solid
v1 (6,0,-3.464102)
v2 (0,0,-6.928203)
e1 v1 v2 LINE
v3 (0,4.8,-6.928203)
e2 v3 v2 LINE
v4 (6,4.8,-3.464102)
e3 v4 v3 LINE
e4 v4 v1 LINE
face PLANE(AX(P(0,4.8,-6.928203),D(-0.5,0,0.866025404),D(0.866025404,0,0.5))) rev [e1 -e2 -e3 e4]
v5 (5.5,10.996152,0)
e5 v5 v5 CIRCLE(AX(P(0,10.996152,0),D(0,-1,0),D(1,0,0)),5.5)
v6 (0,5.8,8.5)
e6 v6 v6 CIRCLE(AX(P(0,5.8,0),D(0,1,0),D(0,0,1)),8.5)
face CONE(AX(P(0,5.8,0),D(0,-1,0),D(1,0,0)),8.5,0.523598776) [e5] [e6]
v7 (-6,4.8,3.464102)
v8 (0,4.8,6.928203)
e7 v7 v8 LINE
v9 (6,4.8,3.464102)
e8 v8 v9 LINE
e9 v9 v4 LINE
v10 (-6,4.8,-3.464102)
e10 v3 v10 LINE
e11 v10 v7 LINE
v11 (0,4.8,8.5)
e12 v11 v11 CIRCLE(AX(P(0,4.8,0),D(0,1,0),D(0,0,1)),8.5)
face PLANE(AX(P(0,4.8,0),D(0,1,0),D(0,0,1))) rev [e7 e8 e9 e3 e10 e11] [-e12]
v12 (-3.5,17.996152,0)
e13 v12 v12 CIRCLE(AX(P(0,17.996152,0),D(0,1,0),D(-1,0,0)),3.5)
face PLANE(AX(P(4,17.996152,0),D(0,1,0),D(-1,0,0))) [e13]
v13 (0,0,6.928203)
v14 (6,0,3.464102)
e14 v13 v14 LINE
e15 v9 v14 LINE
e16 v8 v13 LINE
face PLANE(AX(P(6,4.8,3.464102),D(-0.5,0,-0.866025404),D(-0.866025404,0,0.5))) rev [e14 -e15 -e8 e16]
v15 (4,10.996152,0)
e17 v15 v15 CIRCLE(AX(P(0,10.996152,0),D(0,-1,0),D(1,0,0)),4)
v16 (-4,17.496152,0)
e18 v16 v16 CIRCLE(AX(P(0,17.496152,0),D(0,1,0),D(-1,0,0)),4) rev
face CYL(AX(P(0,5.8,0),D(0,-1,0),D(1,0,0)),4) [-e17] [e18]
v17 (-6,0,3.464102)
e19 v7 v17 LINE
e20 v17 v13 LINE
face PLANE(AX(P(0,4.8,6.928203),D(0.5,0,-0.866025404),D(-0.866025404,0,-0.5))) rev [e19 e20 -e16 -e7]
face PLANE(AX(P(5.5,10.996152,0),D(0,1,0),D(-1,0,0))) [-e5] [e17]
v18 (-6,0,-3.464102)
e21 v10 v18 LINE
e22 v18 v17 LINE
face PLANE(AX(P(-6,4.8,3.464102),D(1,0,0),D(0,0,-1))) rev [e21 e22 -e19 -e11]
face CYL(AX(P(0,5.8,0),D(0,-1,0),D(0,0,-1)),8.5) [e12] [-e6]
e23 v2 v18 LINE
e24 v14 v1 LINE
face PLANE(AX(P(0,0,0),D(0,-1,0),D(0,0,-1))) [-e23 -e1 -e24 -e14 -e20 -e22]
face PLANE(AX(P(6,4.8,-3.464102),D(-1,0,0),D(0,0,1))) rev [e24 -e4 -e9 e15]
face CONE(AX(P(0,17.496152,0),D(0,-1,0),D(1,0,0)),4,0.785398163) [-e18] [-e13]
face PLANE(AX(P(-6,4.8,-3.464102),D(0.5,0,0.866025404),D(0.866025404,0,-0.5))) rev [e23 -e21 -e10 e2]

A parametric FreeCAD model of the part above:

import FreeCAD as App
import Part
import Sketcher
Q = App.Units.Quantity


def edges_at(feature, points):
    """Names of the edges that pass closest to the given points."""
    edges = feature.Shape.Edges
    near = lambda p: min(range(len(edges)), key=lambda i: edges[i].distToShape(Part.Vertex(*p))[0])
    return sorted({f"Edge{near(p) + 1}" for p in points})


def add_polygon(sketch, points):
    """Adds a closed chain of lines whose ends are joined by coincident constraints."""
    first, n = sketch.GeometryCount, len(points)
    for a, b in zip(points, points[1:] + points[:1]):
        sketch.addGeometry(Part.LineSegment(App.Vector(*a, 0), App.Vector(*b, 0)), False)
    for i in range(n):
        sketch.addConstraint(Sketcher.Constraint("Coincident", first + i, 2, first + (i + 1) % n, 1))

doc = App.newDocument("Part")
body = doc.addObject("PartDesign::Body", "Body")

sketch1 = doc.addObject("Sketcher::SketchObject", "Sketch")
body.addObject(sketch1)
sketch1.AttachmentSupport = (doc.XZ_Plane, [""])
sketch1.MapMode = "FlatFace"
add_polygon(sketch1, [(6, -3.464102), (0, -6.928203), (-6, -3.464102), (-6, 3.464102), (0, 6.928203), (6, 3.464102)])
sketch1.addConstraint(Sketcher.Constraint("Vertical", 2))
sketch1.addConstraint(Sketcher.Constraint("Vertical", 5))
sketch1.addConstraint(Sketcher.Constraint("Symmetric", 0, 2, 3, 2, -1, 1))
sketch1.addConstraint(Sketcher.Constraint("Symmetric", 1, 2, 4, 2, -1, 1))
sketch1.addConstraint(Sketcher.Constraint("PointOnObject", 0, 2, -2))
sketch1.addConstraint(Sketcher.Constraint("Parallel", 0, 3))
sketch1.addConstraint(Sketcher.Constraint("Horizontal", 2, 2, 4, 2))
sketch1.addConstraint(Sketcher.Constraint("Angle", 0, Q("-150 deg")))
sketch1.addConstraint(Sketcher.Constraint("DistanceX", 1, 2, -1, 1, 6.0))
sketch1.addConstraint(Sketcher.Constraint("DistanceY", 1, 2, -1, 1, 3.464102))
pad1 = doc.addObject("PartDesign::Pad", "Pad")
body.addObject(pad1)
pad1.Profile = sketch1
pad1.Length = 4.8
pad1.Reversed = True

sketch2 = doc.addObject("Sketcher::SketchObject", "Sketch001")
body.addObject(sketch2)
sketch2.AttachmentSupport = (doc.XZ_Plane, [""])
sketch2.MapMode = "FlatFace"
sketch2.AttachmentOffset = App.Placement(App.Vector(0, 0, -4.8), App.Rotation())
sketch2.addGeometry(Part.Circle(App.Vector(0, 0, 0), App.Vector(0, 0, 1), 8.5), False)
sketch2.addConstraint(Sketcher.Constraint("Coincident", 0, 3, -1, 1))
sketch2.addConstraint(Sketcher.Constraint("Diameter", 0, 17.0))
pad2 = doc.addObject("PartDesign::Pad", "Pad001")
body.addObject(pad2)
pad2.Profile = sketch2
pad2.Length = 1
pad2.Reversed = True

sketch3 = doc.addObject("Sketcher::SketchObject", "Sketch002")
body.addObject(sketch3)
sketch3.AttachmentSupport = (doc.XY_Plane, [""])
sketch3.MapMode = "FlatFace"
add_polygon(sketch3, [(0, 5.8), (8.5, 5.8), (5.5, 10.996152), (4, 10.996152), (4, 17.996152), (0, 17.996152)])
sketch3.addConstraint(Sketcher.Constraint("Horizontal", 0))
sketch3.addConstraint(Sketcher.Constraint("Horizontal", 2))
sketch3.addConstraint(Sketcher.Constraint("Vertical", 3))
sketch3.addConstraint(Sketcher.Constraint("Horizontal", 4))
sketch3.addConstraint(Sketcher.Constraint("Vertical", 5))
sketch3.addConstraint(Sketcher.Constraint("PointOnObject", 4, 2, -2))
sketch3.addConstraint(Sketcher.Constraint("DistanceX", 4, 2, 4, 1, 4.0))
sketch3.addConstraint(Sketcher.Constraint("DistanceY", 3, 1, 3, 2, 7.0))
sketch3.addConstraint(Sketcher.Constraint("Angle", 1, Q("120 deg")))
sketch3.addConstraint(Sketcher.Constraint("Distance", 1, 6.0))
sketch3.addConstraint(Sketcher.Constraint("DistanceX", 0, 1, 0, 2, 8.5))
sketch3.addConstraint(Sketcher.Constraint("DistanceY", -1, 1, 0, 2, 5.8))
revolution = doc.addObject("PartDesign::Revolution", "Revolution")
body.addObject(revolution)
revolution.Profile = sketch3
revolution.ReferenceAxis = (sketch3, ["V_Axis"])
revolution.Angle = 360
doc.recompute()

chamfer = doc.addObject("PartDesign::Chamfer", "Chamfer")
body.addObject(chamfer)
chamfer.Base = (revolution, edges_at(revolution, [(-4, 17.996, 0)]))
chamfer.Size = 0.5

doc.recompute()
